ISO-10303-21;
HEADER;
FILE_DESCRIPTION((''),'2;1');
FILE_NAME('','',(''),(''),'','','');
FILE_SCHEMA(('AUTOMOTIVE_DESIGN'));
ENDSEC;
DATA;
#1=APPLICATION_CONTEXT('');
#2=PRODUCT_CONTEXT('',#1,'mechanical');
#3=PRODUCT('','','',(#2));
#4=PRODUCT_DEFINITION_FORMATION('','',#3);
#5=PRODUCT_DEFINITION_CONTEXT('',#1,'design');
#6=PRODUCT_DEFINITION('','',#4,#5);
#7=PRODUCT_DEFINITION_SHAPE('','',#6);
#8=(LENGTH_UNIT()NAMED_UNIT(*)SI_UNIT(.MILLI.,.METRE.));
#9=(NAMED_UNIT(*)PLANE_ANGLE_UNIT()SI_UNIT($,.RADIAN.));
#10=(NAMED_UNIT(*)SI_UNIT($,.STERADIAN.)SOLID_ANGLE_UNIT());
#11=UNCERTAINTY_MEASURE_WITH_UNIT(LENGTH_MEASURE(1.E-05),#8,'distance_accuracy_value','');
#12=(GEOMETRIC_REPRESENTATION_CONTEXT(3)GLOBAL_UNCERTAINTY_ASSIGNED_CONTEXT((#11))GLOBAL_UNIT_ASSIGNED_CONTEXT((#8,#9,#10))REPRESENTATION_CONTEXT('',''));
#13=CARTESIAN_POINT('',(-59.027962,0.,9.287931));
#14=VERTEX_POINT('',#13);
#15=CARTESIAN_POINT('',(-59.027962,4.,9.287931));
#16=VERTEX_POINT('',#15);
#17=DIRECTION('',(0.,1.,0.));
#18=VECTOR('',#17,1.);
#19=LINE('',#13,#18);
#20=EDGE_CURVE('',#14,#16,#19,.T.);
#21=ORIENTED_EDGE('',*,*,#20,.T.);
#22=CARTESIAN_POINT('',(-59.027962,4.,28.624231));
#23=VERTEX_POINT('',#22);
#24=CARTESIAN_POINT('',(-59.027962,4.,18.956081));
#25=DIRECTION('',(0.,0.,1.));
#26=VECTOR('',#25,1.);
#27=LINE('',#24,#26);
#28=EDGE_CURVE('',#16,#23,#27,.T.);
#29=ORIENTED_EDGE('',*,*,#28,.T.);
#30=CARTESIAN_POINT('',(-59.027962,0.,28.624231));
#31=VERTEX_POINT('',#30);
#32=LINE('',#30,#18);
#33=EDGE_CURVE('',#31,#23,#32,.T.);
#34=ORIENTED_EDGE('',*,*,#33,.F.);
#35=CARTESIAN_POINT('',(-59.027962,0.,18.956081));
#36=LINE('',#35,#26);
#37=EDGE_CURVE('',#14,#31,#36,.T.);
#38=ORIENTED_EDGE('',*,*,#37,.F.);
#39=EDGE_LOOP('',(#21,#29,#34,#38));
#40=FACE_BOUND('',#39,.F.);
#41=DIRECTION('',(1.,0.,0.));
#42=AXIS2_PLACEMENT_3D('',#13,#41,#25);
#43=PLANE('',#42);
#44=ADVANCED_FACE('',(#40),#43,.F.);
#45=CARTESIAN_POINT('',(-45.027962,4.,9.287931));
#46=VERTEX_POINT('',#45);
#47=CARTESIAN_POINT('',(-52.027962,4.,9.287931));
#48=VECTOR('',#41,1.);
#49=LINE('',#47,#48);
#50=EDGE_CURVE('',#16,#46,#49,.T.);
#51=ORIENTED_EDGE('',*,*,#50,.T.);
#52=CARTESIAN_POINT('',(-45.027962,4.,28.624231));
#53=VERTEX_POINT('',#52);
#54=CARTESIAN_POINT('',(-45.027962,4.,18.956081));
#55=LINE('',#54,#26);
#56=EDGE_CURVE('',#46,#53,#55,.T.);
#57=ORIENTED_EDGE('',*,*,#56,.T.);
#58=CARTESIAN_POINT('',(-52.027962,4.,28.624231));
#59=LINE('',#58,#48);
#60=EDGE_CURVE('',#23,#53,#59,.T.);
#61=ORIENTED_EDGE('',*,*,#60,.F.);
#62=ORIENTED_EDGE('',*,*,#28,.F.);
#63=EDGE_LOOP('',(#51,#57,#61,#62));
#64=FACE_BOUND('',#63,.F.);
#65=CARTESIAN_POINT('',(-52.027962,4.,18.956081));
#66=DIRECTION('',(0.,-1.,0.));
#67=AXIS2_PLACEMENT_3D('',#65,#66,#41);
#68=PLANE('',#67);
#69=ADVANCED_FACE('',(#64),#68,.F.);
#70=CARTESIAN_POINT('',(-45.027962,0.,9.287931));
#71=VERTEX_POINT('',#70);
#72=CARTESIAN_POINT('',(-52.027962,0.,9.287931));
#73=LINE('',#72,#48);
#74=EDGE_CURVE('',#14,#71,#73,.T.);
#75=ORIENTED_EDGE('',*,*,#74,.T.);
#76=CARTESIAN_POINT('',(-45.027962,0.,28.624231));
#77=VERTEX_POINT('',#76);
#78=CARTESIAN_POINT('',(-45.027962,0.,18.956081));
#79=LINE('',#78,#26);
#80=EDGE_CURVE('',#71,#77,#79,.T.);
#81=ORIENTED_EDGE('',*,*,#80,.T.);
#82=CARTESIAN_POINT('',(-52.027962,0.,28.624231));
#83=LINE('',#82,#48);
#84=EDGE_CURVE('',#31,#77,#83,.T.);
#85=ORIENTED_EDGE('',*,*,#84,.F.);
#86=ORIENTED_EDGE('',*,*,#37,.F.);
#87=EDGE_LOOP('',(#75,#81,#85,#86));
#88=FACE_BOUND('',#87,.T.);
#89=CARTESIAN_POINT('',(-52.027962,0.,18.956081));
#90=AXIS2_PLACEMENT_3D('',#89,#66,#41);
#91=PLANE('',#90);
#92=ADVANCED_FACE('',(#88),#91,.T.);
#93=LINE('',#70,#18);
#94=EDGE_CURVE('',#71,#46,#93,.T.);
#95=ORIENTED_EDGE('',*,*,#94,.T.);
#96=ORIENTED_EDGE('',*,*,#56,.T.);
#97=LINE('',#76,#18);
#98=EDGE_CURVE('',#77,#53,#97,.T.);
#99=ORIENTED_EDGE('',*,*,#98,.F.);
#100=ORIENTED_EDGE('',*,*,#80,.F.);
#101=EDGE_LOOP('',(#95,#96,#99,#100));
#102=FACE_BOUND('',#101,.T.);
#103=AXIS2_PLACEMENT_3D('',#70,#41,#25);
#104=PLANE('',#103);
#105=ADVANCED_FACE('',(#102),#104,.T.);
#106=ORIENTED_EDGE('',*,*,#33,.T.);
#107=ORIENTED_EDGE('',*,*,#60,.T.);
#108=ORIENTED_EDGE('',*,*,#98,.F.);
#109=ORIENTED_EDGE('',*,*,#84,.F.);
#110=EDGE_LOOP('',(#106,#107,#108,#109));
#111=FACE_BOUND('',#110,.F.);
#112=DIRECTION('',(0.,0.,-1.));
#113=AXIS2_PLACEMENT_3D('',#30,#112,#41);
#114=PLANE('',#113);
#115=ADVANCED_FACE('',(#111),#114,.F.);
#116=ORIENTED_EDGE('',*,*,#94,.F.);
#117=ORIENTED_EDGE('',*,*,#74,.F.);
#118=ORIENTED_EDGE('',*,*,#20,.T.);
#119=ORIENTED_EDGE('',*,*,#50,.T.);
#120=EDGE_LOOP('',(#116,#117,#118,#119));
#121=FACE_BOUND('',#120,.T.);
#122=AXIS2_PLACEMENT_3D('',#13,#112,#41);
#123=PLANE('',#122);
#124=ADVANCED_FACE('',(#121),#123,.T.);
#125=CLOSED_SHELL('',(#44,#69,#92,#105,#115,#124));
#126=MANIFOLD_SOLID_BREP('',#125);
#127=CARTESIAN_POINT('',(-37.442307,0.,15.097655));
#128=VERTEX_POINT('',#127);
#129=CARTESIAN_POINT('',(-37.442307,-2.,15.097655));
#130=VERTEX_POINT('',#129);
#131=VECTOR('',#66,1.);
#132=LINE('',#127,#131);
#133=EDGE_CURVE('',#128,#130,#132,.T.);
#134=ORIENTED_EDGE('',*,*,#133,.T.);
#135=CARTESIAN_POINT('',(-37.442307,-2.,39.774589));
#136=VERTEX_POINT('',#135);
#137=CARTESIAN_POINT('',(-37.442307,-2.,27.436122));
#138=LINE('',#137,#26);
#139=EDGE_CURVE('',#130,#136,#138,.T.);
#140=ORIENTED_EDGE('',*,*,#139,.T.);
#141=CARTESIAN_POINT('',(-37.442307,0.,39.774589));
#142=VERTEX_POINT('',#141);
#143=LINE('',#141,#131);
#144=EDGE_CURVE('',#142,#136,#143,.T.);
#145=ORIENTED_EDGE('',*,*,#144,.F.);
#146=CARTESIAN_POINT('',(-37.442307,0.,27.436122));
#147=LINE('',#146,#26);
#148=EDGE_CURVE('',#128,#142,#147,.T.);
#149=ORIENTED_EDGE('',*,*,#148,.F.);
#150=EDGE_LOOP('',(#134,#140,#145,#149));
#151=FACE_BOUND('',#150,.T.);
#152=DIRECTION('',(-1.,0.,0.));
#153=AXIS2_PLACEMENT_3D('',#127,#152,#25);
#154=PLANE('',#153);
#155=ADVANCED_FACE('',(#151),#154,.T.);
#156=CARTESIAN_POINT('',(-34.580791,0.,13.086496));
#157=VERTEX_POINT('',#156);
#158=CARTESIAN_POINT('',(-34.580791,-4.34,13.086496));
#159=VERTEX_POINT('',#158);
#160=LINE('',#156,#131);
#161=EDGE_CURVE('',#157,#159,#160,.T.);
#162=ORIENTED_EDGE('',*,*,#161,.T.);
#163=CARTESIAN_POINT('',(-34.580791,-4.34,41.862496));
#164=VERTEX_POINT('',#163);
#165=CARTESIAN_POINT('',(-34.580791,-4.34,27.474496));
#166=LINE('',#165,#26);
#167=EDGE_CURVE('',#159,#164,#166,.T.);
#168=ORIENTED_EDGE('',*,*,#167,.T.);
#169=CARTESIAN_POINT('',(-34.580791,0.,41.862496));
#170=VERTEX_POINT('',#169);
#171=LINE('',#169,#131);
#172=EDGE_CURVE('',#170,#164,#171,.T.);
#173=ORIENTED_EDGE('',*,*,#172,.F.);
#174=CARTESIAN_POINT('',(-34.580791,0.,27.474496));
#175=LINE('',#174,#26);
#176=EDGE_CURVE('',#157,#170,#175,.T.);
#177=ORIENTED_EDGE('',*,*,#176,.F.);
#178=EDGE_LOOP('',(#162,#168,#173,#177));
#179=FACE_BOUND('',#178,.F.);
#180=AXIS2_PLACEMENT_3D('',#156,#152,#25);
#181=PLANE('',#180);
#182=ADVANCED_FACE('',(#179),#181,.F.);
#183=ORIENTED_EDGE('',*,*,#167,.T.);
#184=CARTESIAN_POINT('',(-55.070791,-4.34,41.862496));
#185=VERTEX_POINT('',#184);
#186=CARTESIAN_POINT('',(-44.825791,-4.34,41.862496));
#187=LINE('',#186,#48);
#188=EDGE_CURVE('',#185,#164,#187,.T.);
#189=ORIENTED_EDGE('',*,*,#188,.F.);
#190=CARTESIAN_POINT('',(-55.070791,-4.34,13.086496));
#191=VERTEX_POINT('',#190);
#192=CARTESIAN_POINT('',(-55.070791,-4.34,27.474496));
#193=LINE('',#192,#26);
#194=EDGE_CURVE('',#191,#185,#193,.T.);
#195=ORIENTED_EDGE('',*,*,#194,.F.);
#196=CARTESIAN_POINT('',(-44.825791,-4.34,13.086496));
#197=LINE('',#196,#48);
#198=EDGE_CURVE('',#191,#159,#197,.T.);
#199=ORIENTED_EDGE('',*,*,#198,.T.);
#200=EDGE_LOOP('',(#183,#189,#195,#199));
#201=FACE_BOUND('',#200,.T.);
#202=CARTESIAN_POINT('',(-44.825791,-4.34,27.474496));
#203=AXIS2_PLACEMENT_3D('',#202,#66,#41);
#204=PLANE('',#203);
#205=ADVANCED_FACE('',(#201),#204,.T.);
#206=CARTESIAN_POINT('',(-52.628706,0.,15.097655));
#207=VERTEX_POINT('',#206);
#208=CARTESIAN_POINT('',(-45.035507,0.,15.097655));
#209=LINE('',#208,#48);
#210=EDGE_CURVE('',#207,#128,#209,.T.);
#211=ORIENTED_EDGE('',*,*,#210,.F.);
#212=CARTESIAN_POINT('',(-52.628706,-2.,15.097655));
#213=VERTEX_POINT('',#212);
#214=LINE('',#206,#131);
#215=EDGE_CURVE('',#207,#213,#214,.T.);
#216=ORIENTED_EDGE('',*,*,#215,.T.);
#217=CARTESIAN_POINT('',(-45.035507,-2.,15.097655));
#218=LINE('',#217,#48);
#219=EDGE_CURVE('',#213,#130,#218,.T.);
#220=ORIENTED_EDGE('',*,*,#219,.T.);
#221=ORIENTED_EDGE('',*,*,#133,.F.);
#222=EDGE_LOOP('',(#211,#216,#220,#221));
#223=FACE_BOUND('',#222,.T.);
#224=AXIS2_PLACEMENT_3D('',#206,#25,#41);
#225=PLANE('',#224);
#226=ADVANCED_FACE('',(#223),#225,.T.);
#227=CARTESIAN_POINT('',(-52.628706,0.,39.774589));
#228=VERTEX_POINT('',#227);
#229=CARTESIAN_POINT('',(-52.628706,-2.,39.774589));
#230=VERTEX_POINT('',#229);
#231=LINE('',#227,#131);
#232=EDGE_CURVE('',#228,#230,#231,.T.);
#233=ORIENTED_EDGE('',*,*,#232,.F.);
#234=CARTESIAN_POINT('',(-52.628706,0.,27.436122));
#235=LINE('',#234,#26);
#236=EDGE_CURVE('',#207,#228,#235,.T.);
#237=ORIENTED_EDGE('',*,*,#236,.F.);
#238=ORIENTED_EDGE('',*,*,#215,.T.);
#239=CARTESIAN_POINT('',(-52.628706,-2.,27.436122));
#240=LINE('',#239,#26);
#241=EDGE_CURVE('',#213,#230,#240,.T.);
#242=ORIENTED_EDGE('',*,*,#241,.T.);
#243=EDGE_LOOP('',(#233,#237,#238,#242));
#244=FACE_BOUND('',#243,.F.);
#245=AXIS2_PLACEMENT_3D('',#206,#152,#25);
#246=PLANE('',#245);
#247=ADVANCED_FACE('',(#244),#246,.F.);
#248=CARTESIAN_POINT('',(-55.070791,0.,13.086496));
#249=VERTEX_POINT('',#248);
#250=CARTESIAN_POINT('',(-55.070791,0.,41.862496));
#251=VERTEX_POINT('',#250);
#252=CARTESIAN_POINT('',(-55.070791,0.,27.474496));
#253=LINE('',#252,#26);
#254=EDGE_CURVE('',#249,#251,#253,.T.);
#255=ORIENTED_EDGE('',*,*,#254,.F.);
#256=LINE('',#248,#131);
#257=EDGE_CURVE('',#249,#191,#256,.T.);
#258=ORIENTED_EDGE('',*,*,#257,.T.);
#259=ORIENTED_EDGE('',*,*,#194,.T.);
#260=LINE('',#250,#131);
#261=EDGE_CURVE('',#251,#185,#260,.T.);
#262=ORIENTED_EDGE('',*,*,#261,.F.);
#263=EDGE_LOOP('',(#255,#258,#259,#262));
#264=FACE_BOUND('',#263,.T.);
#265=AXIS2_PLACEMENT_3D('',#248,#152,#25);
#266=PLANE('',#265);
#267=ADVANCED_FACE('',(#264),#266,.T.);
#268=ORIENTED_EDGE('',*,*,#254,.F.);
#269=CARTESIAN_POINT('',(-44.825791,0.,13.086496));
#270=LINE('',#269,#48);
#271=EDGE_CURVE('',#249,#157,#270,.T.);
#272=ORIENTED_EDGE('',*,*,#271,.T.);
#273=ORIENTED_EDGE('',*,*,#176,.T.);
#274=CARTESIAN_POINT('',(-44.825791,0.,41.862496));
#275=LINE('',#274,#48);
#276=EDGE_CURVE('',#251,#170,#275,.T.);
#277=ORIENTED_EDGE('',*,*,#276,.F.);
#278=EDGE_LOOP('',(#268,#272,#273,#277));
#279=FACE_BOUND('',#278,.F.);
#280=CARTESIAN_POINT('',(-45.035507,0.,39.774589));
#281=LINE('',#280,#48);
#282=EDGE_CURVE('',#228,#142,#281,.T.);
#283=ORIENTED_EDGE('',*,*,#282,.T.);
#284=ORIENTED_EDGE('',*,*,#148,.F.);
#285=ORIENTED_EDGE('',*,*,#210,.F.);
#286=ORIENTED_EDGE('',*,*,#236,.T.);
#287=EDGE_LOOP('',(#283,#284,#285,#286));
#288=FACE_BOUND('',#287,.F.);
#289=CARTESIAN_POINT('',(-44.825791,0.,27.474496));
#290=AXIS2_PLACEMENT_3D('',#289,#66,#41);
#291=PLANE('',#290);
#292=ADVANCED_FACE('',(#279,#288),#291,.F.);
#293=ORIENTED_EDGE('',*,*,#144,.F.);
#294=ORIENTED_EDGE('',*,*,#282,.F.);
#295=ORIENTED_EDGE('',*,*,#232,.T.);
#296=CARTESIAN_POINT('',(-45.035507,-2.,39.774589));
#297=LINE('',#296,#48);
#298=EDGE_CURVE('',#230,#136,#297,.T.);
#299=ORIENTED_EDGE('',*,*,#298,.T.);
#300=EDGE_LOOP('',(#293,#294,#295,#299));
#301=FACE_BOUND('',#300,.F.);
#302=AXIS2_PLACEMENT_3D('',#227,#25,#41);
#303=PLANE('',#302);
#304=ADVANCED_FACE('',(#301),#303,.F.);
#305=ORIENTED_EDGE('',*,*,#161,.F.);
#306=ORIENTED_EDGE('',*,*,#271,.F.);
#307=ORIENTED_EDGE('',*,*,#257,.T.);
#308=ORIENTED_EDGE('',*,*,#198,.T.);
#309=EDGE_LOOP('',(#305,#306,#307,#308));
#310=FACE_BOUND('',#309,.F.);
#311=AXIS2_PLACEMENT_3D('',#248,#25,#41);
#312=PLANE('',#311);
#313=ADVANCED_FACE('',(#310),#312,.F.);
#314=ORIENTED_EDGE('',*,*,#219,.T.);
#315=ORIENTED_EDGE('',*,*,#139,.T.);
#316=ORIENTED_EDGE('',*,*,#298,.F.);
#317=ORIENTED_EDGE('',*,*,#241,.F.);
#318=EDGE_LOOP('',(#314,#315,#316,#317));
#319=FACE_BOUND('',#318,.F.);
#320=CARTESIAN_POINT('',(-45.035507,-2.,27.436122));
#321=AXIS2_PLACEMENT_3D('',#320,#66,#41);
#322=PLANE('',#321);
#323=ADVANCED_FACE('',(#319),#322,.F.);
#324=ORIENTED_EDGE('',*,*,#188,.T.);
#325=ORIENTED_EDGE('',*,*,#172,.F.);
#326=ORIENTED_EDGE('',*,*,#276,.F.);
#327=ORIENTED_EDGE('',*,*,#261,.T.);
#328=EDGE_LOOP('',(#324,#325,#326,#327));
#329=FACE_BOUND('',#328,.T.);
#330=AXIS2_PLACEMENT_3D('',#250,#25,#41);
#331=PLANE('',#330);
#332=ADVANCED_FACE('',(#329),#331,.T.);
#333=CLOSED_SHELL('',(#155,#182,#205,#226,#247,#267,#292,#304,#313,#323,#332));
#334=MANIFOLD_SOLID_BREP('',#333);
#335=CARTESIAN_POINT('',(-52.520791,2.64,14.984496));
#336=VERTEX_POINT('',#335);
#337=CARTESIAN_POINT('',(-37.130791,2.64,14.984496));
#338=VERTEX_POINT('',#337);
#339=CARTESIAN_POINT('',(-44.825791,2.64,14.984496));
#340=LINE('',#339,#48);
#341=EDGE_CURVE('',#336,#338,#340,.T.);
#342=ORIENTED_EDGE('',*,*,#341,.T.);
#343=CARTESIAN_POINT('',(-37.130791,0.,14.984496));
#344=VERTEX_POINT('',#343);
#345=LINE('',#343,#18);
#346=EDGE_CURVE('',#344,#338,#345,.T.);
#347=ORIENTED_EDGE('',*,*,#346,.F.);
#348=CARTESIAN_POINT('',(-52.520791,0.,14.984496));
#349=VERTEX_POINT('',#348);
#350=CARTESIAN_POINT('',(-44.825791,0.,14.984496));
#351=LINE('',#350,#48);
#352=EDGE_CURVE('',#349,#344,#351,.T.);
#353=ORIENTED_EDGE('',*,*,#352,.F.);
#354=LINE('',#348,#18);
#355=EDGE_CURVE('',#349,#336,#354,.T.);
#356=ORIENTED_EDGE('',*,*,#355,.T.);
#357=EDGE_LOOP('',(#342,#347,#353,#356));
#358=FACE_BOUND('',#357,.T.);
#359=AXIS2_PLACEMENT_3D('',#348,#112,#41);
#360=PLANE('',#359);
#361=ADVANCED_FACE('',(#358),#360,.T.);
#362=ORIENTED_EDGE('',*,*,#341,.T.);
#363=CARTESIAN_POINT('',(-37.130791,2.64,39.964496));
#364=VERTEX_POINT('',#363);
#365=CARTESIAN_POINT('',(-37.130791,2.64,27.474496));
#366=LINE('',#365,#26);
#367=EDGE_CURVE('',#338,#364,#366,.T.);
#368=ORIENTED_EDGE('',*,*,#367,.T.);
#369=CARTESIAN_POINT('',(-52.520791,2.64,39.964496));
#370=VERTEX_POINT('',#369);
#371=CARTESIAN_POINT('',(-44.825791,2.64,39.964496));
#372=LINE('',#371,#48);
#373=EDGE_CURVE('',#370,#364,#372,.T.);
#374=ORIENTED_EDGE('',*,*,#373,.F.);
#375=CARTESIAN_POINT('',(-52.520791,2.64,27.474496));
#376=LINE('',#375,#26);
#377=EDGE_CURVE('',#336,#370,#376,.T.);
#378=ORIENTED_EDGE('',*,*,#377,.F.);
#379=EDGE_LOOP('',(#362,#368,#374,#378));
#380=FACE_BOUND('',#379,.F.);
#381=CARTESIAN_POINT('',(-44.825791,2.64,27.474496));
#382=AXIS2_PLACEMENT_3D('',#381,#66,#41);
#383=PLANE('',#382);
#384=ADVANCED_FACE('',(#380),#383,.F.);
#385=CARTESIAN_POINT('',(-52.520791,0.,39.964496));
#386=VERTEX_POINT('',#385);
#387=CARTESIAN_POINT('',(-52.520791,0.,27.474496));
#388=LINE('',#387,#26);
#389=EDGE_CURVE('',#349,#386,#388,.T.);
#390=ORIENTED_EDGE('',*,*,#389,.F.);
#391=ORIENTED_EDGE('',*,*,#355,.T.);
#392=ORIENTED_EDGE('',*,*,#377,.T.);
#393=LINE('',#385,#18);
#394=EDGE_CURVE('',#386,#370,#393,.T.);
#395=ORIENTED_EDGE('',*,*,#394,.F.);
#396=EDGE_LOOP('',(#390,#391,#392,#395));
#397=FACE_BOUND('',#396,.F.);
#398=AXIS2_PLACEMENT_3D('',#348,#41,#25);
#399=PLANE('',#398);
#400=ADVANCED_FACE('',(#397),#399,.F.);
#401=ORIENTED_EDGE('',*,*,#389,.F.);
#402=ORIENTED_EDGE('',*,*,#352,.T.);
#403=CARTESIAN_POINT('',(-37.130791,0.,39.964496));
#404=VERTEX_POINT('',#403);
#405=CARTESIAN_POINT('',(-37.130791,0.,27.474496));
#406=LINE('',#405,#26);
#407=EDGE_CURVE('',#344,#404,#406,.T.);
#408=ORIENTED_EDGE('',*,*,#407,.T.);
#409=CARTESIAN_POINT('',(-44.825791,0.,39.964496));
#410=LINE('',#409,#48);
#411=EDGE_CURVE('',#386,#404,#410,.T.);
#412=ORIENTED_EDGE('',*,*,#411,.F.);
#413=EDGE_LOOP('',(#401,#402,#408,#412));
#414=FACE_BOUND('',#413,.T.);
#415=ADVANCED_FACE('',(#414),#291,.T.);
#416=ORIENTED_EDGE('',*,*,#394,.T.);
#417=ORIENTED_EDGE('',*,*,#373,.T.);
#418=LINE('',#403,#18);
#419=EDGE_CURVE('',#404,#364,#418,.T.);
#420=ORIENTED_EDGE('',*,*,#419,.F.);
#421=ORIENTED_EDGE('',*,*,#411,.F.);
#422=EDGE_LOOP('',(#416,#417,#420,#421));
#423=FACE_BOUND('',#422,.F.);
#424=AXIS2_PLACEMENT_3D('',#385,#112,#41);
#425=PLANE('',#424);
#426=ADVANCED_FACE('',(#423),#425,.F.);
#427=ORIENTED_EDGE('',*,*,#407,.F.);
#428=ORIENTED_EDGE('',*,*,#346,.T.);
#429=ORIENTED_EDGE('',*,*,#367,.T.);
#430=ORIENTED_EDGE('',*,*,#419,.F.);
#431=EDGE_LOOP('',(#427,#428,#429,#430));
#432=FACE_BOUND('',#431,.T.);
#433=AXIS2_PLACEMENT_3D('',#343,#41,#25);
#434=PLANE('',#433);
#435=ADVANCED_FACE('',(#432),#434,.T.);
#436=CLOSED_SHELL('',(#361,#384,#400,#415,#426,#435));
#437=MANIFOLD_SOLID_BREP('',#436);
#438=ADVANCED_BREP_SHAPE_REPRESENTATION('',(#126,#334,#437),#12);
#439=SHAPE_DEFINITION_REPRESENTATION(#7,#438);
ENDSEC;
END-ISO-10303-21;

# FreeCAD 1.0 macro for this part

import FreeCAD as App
import Part
import Sketcher

V = App.Vector
Q = App.Units.Quantity


def add_polygon(sketch, points):
    """Adds a closed chain of lines whose ends are joined by coincident constraints."""
    first, n = sketch.GeometryCount, len(points)
    for a, b in zip(points, points[1:] + points[:1]):
        sketch.addGeometry(Part.LineSegment(App.Vector(*a, 0), App.Vector(*b, 0)), False)
    for i in range(n):
        sketch.addConstraint(Sketcher.Constraint("Coincident", first + i, 2, first + (i + 1) % n, 1))

doc = App.newDocument("Part")
body = doc.addObject("PartDesign::Body", "Body")

sketch1 = body.newObject("Sketcher::SketchObject", "Sketch")
sketch1.AttachmentSupport = (doc.getObject("XZ_Plane"), [""])
sketch1.MapMode = "FlatFace"
add_polygon(sketch1, [(-53, 40), (-53, 15), (-37, 15), (-37, 40)])
sketch1.addConstraint(Sketcher.Constraint("Vertical", 0))
sketch1.addConstraint(Sketcher.Constraint("Horizontal", 1))
sketch1.addConstraint(Sketcher.Constraint("Vertical", 2))
sketch1.addConstraint(Sketcher.Constraint("Horizontal", 3))
sketch1.addConstraint(Sketcher.Constraint("DistanceX", 1, 1, 1, 2, Q("15.39 mm")))
sketch1.addConstraint(Sketcher.Constraint("DistanceY", 0, 2, 0, 1, Q("24.98 mm")))
sketch1.addConstraint(Sketcher.Constraint("DistanceX", 0, 2, -1, 1, Q("52.520791 mm")))
sketch1.addConstraint(Sketcher.Constraint("DistanceY", -1, 1, 0, 2, Q("14.984496 mm")))
pad1 = body.newObject("PartDesign::Pad", "Pad")
pad1.Profile = sketch1
pad1.Length = 2.64
pad1.Reversed = True
body2 = doc.addObject("PartDesign::Body", "Body001")

sketch2 = body2.newObject("Sketcher::SketchObject", "Sketch001")
sketch2.AttachmentSupport = (doc.getObject("XZ_Plane001"), [""])
sketch2.MapMode = "FlatFace"
add_polygon(sketch2, [(-55, 42), (-55, 13), (-35, 13), (-35, 42)])
sketch2.addConstraint(Sketcher.Constraint("Vertical", 0))
sketch2.addConstraint(Sketcher.Constraint("Horizontal", 1))
sketch2.addConstraint(Sketcher.Constraint("Vertical", 2))
sketch2.addConstraint(Sketcher.Constraint("Horizontal", 3))
sketch2.addConstraint(Sketcher.Constraint("DistanceX", 1, 1, 1, 2, Q("20.49 mm")))
sketch2.addConstraint(Sketcher.Constraint("DistanceY", 0, 2, 0, 1, Q("28.776 mm")))
sketch2.addConstraint(Sketcher.Constraint("DistanceX", 0, 2, -1, 1, Q("55.070791 mm")))
sketch2.addConstraint(Sketcher.Constraint("DistanceY", -1, 1, 0, 2, Q("13.086496 mm")))
pad2 = body2.newObject("PartDesign::Pad", "Pad001")
pad2.Profile = sketch2
pad2.Length = 4.34

sketch3 = body2.newObject("Sketcher::SketchObject", "Sketch002")
sketch3.AttachmentSupport = (doc.getObject("XZ_Plane001"), [""])
sketch3.MapMode = "FlatFace"
add_polygon(sketch3, [(-53, 40), (-53, 15), (-37, 15), (-37, 40)])
sketch3.addConstraint(Sketcher.Constraint("Vertical", 0))
sketch3.addConstraint(Sketcher.Constraint("Horizontal", 1))
sketch3.addConstraint(Sketcher.Constraint("Vertical", 2))
sketch3.addConstraint(Sketcher.Constraint("Horizontal", 3))
sketch3.addConstraint(Sketcher.Constraint("DistanceX", 1, 1, 1, 2, Q("15.186399 mm")))
sketch3.addConstraint(Sketcher.Constraint("DistanceY", 0, 2, 0, 1, Q("24.676934 mm")))
sketch3.addConstraint(Sketcher.Constraint("DistanceY", -1, 1, 2, 2, Q("39.774589 mm")))
sketch3.addConstraint(Sketcher.Constraint("DistanceX", 0, 2, -1, 1, Q("52.628706 mm")))
pocket1 = body2.newObject("PartDesign::Pocket", "Pocket")
pocket1.Profile = sketch3
pocket1.Length = 2
pocket1.Reversed = True
body3 = doc.addObject("PartDesign::Body", "Body002")

sketch4 = body3.newObject("Sketcher::SketchObject", "Sketch003")
sketch4.AttachmentSupport = (doc.getObject("XZ_Plane002"), [""])
sketch4.MapMode = "FlatFace"
add_polygon(sketch4, [(-59, 29), (-59, 9), (-45, 9), (-45, 29)])
sketch4.addConstraint(Sketcher.Constraint("Vertical", 0))
sketch4.addConstraint(Sketcher.Constraint("Horizontal", 1))
sketch4.addConstraint(Sketcher.Constraint("Vertical", 2))
sketch4.addConstraint(Sketcher.Constraint("Horizontal", 3))
sketch4.addConstraint(Sketcher.Constraint("DistanceX", 1, 1, 1, 2, Q("14 mm")))
sketch4.addConstraint(Sketcher.Constraint("DistanceY", 0, 2, 0, 1, Q("19.3363 mm")))
sketch4.addConstraint(Sketcher.Constraint("DistanceY", -1, 1, 0, 2, Q("9.287931 mm")))
sketch4.addConstraint(Sketcher.Constraint("DistanceX", 0, 2, -1, 1, Q("59.027962 mm")))
pad3 = body3.newObject("PartDesign::Pad", "Pad002")
pad3.Profile = sketch4
pad3.Length = 4
pad3.Reversed = True

doc.recompute()
